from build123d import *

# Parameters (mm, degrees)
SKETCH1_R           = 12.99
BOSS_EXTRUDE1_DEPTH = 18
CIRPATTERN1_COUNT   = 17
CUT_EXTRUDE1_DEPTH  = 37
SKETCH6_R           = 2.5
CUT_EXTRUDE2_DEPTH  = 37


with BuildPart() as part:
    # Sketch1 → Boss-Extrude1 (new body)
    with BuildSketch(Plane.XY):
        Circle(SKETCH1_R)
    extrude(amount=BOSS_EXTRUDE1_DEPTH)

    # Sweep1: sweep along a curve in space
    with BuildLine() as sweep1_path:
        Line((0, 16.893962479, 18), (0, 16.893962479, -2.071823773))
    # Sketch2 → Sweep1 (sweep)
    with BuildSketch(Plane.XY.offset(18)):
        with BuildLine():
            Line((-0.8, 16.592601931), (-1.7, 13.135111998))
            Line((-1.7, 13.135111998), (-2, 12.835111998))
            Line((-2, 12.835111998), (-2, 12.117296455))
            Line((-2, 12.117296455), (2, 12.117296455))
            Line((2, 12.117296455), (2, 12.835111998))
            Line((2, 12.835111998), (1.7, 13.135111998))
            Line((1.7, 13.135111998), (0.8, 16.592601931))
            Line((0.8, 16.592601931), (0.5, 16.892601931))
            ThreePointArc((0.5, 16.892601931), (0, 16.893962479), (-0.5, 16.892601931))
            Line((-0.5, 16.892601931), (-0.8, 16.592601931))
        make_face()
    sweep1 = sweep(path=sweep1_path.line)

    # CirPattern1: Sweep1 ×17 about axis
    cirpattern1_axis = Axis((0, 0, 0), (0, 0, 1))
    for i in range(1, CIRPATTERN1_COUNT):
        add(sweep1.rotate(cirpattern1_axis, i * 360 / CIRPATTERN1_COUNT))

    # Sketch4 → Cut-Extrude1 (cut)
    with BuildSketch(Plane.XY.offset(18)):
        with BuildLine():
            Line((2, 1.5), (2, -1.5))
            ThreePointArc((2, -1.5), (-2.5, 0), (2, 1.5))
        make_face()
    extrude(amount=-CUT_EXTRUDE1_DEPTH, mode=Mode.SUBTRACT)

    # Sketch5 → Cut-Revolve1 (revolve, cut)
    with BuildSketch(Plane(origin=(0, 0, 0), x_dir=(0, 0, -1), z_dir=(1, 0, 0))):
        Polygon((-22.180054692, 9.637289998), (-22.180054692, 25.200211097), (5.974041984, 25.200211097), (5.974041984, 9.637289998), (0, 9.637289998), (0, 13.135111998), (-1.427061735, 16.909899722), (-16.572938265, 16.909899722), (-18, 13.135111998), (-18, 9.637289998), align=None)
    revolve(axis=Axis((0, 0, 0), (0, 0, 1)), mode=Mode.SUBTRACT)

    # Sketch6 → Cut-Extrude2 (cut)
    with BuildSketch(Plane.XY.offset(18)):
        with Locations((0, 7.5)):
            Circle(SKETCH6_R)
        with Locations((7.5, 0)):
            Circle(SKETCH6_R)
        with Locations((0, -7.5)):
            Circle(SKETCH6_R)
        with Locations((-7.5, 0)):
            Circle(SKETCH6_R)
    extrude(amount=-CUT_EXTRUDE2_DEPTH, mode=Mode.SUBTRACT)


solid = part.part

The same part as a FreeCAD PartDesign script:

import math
import FreeCAD as App
import Part
import Sketcher

V = App.Vector
Q = App.Units.Quantity

doc = App.newDocument("Part")
body = doc.addObject("PartDesign::Body", "Body")

sketch1 = body.newObject("Sketcher::SketchObject", "Sketch")
sketch1.AttachmentSupport = (doc.getObject("XY_Plane"), [""])
sketch1.MapMode = "FlatFace"
sketch1.addGeometry(Part.Circle(V(0, 0, 0), V(0, 0, 1), 13), False)
sketch1.addConstraint(Sketcher.Constraint("Coincident", 0, 3, -1, 1))
sketch1.addConstraint(Sketcher.Constraint("Diameter", 0, Q("25.98 mm")))
pad1 = body.newObject("PartDesign::Pad", "Pad")
pad1.Profile = sketch1
pad1.Length = 18

sketch2 = body.newObject("Sketcher::SketchObject", "Sketch001")
sketch2.AttachmentSupport = (doc.getObject("XY_Plane"), [""])
sketch2.MapMode = "FlatFace"
sketch2.AttachmentOffset = App.Placement(V(0, 0, 18), App.Rotation())
sketch2.addGeometry(Part.LineSegment(V(-0.8, 16.59, 0), V(-1.7, 13.14, 0)), False)
sketch2.addGeometry(Part.LineSegment(V(-1.7, 13.14, 0), V(-2, 12.84, 0)), False)
sketch2.addGeometry(Part.LineSegment(V(-2, 12.84, 0), V(-2, 12.12, 0)), False)
sketch2.addGeometry(Part.LineSegment(V(-2, 12.12, 0), V(2, 12.12, 0)), False)
sketch2.addGeometry(Part.LineSegment(V(2, 12.12, 0), V(2, 12.84, 0)), False)
sketch2.addGeometry(Part.LineSegment(V(2, 12.84, 0), V(1.7, 13.14, 0)), False)
sketch2.addGeometry(Part.LineSegment(V(1.7, 13.14, 0), V(0.8, 16.59, 0)), False)
sketch2.addGeometry(Part.LineSegment(V(0.8, 16.59, 0), V(0.5, 16.89, 0)), False)
sketch2.addGeometry(Part.ArcOfCircle(Part.Circle(V(0, -74.98, 0), V(0, 0, 1), 91.88), math.radians(89.69), math.radians(90.31)), False)
sketch2.addGeometry(Part.LineSegment(V(-0.5, 16.89, 0), V(-0.8, 16.59, 0)), False)
sketch2.addConstraint(Sketcher.Constraint("Coincident", 0, 2, 1, 1))
sketch2.addConstraint(Sketcher.Constraint("Coincident", 1, 2, 2, 1))
sketch2.addConstraint(Sketcher.Constraint("Coincident", 2, 2, 3, 1))
sketch2.addConstraint(Sketcher.Constraint("Coincident", 3, 2, 4, 1))
sketch2.addConstraint(Sketcher.Constraint("Coincident", 4, 2, 5, 1))
sketch2.addConstraint(Sketcher.Constraint("Coincident", 5, 2, 6, 1))
sketch2.addConstraint(Sketcher.Constraint("Coincident", 6, 2, 7, 1))
sketch2.addConstraint(Sketcher.Constraint("Coincident", 7, 2, 8, 1))
sketch2.addConstraint(Sketcher.Constraint("Coincident", 8, 2, 9, 1))
sketch2.addConstraint(Sketcher.Constraint("Coincident", 9, 2, 0, 1))
sketch2.addConstraint(Sketcher.Constraint("Vertical", 2))
sketch2.addConstraint(Sketcher.Constraint("Horizontal", 3))
sketch2.addConstraint(Sketcher.Constraint("Vertical", 4))
sketch2.addConstraint(Sketcher.Constraint("Symmetric", 1, 2, 4, 2, -2))
sketch2.addConstraint(Sketcher.Constraint("Symmetric", 0, 2, 5, 2, -2))
sketch2.addConstraint(Sketcher.Constraint("Symmetric", 7, 2, 8, 2, -2))
sketch2.addConstraint(Sketcher.Constraint("Symmetric", 6, 2, 9, 2, -2))
sketch2.addConstraint(Sketcher.Constraint("Perpendicular", 1, 5))
sketch2.addConstraint(Sketcher.Constraint("Parallel", 5, 7))
sketch2.addConstraint(Sketcher.Constraint("Equal", 5, 7))
sketch2.addConstraint(Sketcher.Constraint("DistanceX", 3, 1, 3, 2, Q("4 mm")))
sketch2.addConstraint(Sketcher.Constraint("DistanceX", 8, 2, 7, 2, Q("1 mm")))
sketch2.addConstraint(Sketcher.Constraint("DistanceX", 0, 2, -1, 1, Q("1.7 mm")))
sketch2.addConstraint(Sketcher.Constraint("Radius", 8, Q("91.875425 mm")))
sketch2.addConstraint(Sketcher.Constraint("DistanceY", -1, 1, 6, 2, Q("16.592602 mm")))
sketch2.addConstraint(Sketcher.Constraint("DistanceY", 2, 2, 2, 1, Q("0.717816 mm")))
sketch2.addConstraint(Sketcher.Constraint("DistanceY", -1, 1, 0, 2, Q("13.135112 mm")))

sketch3 = body.newObject("Sketcher::SketchObject", "Sketch002")
sketch3.AttachmentSupport = (doc.getObject("XZ_Plane"), [""])
sketch3.MapMode = "FlatFace"
sketch3.AttachmentOffset = App.Placement(V(0, 0, -16.893962), App.Rotation())
sketch3.addGeometry(Part.LineSegment(V(0, 18, 0), V(0, -2, 0)), False)
sketch3.addConstraint(Sketcher.Constraint("Vertical", 0))
sketch3.addConstraint(Sketcher.Constraint("PointOnObject", 0, 1, -2))
sketch3.addConstraint(Sketcher.Constraint("DistanceY", -1, 1, 0, 1, Q("18 mm")))
sketch3.addConstraint(Sketcher.Constraint("DistanceY", 0, 2, 0, 1, Q("20.071824 mm")))
doc.recompute()

additivepipe = body.newObject("PartDesign::AdditivePipe", "AdditivePipe")
additivepipe.Profile = sketch2
additivepipe.Spine = (sketch3, ["Edge1"])
doc.recompute()

polarpattern = body.newObject("PartDesign::PolarPattern", "PolarPattern")
polarpattern.Originals = [additivepipe]
polarpattern.Axis = (doc.getObject("Z_Axis"), [""])
polarpattern.Angle = 360
polarpattern.Occurrences = 17
body.Tip = polarpattern

sketch4 = body.newObject("Sketcher::SketchObject", "Sketch003")
sketch4.AttachmentSupport = (doc.getObject("XY_Plane"), [""])
sketch4.MapMode = "FlatFace"
sketch4.AttachmentOffset = App.Placement(V(0, 0, 18), App.Rotation())
sketch4.addGeometry(Part.LineSegment(V(2, -1.5, 0), V(2, 1.5, 0)), False)
sketch4.addGeometry(Part.ArcOfCircle(Part.Circle(V(0, 0, 0), V(0, 0, 1), 2.5), math.radians(37), math.radians(323)), False)
sketch4.addConstraint(Sketcher.Constraint("Coincident", 0, 1, 1, 2))
sketch4.addConstraint(Sketcher.Constraint("Coincident", 1, 1, 0, 2))
sketch4.addConstraint(Sketcher.Constraint("Vertical", 0))
sketch4.addConstraint(Sketcher.Constraint("Coincident", 1, 3, -1, 1))
sketch4.addConstraint(Sketcher.Constraint("Radius", 1, Q("2.5 mm")))
sketch4.addConstraint(Sketcher.Constraint("DistanceY", 0, 1, 0, 2, Q("3 mm")))
pocket1 = body.newObject("PartDesign::Pocket", "Pocket")
pocket1.Profile = sketch4
pocket1.Length = 37

sketch5 = body.newObject("Sketcher::SketchObject", "Sketch004")
sketch5.AttachmentSupport = (doc.getObject("YZ_Plane"), [""])
sketch5.MapMode = "FlatFace"
sketch5.addGeometry(Part.LineSegment(V(25.2, 22.2, 0), V(9.6, 22.2, 0)), False)
sketch5.addGeometry(Part.LineSegment(V(9.6, 22.2, 0), V(9.6, 18, 0)), False)
sketch5.addGeometry(Part.LineSegment(V(9.6, 18, 0), V(13.1, 18, 0)), False)
sketch5.addGeometry(Part.LineSegment(V(13.1, 18, 0), V(16.9, 16.6, 0)), False)
sketch5.addGeometry(Part.LineSegment(V(16.9, 16.6, 0), V(16.9, 1.4, 0)), False)
sketch5.addGeometry(Part.LineSegment(V(16.9, 1.4, 0), V(13.1, 0, 0)), False)
sketch5.addGeometry(Part.LineSegment(V(13.1, 0, 0), V(9.6, 0, 0)), False)
sketch5.addGeometry(Part.LineSegment(V(9.6, 0, 0), V(9.6, -6, 0)), False)
sketch5.addGeometry(Part.LineSegment(V(9.6, -6, 0), V(25.2, -6, 0)), False)
sketch5.addGeometry(Part.LineSegment(V(25.2, -6, 0), V(25.2, 22.2, 0)), False)
sketch5.addConstraint(Sketcher.Constraint("Coincident", 0, 2, 1, 1))
sketch5.addConstraint(Sketcher.Constraint("Coincident", 1, 2, 2, 1))
sketch5.addConstraint(Sketcher.Constraint("Coincident", 2, 2, 3, 1))
sketch5.addConstraint(Sketcher.Constraint("Coincident", 3, 2, 4, 1))
sketch5.addConstraint(Sketcher.Constraint("Coincident", 4, 2, 5, 1))
sketch5.addConstraint(Sketcher.Constraint("Coincident", 5, 2, 6, 1))
sketch5.addConstraint(Sketcher.Constraint("Coincident", 6, 2, 7, 1))
sketch5.addConstraint(Sketcher.Constraint("Coincident", 7, 2, 8, 1))
sketch5.addConstraint(Sketcher.Constraint("Coincident", 8, 2, 9, 1))
sketch5.addConstraint(Sketcher.Constraint("Coincident", 9, 2, 0, 1))
sketch5.addConstraint(Sketcher.Constraint("Horizontal", 0))
sketch5.addConstraint(Sketcher.Constraint("Vertical", 1))
sketch5.addConstraint(Sketcher.Constraint("Horizontal", 2))
sketch5.addConstraint(Sketcher.Constraint("Vertical", 4))
sketch5.addConstraint(Sketcher.Constraint("Horizontal", 6))
sketch5.addConstraint(Sketcher.Constraint("Vertical", 7))
sketch5.addConstraint(Sketcher.Constraint("Horizontal", 8))
sketch5.addConstraint(Sketcher.Constraint("Vertical", 9))
sketch5.addConstraint(Sketcher.Constraint("PointOnObject", 5, 2, -1))
sketch5.addConstraint(Sketcher.Constraint("Vertical", 2, 2, 5, 2))
sketch5.addConstraint(Sketcher.Constraint("Vertical", 1, 2, 6, 2))
sketch5.addConstraint(Sketcher.Constraint("Equal", 3, 5))
sketch5.addConstraint(Sketcher.Constraint("DistanceY", -1, 1, 1, 2, Q("18 mm")))
sketch5.addConstraint(Sketcher.Constraint("DistanceX", 0, 2, 0, 1, Q("15.562921 mm")))
sketch5.addConstraint(Sketcher.Constraint("DistanceX", 2, 1, 2, 2, Q("3.497822 mm")))
sketch5.addConstraint(Sketcher.Constraint("DistanceY", 7, 2, 7, 1, Q("5.974042 mm")))
sketch5.addConstraint(Sketcher.Constraint("DistanceX", -1, 1, 3, 2, Q("16.9099 mm")))
sketch5.addConstraint(Sketcher.Constraint("DistanceY", 1, 2, 1, 1, Q("4.180055 mm")))
sketch5.addConstraint(Sketcher.Constraint("DistanceY", 4, 2, 4, 1, Q("15.145877 mm")))
sketch5.addConstraint(Sketcher.Constraint("DistanceX", -1, 1, 0, 2, Q("9.63729 mm")))
groove = body.newObject("PartDesign::Groove", "Groove")
groove.Profile = sketch5
groove.ReferenceAxis = (sketch5, ["V_Axis"])
groove.Angle = 360

sketch6 = body.newObject("Sketcher::SketchObject", "Sketch005")
sketch6.AttachmentSupport = (doc.getObject("XY_Plane"), [""])
sketch6.MapMode = "FlatFace"
sketch6.AttachmentOffset = App.Placement(V(0, 0, 18), App.Rotation())
sketch6.addGeometry(Part.Circle(V(0, 7.5, 0), V(0, 0, 1), 2.5), False)
sketch6.addGeometry(Part.Circle(V(7.5, 0, 0), V(0, 0, 1), 2.5), False)
sketch6.addGeometry(Part.Circle(V(0, -7.5, 0), V(0, 0, 1), 2.5), False)
sketch6.addGeometry(Part.Circle(V(-7.5, 0, 0), V(0, 0, 1), 2.5), False)
sketch6.addConstraint(Sketcher.Constraint("Equal", 0, 1))
sketch6.addConstraint(Sketcher.Constraint("Equal", 1, 2))
sketch6.addConstraint(Sketcher.Constraint("Equal", 2, 3))
sketch6.addConstraint(Sketcher.Constraint("Symmetric", 0, 3, 2, 3, -1, 1))
sketch6.addConstraint(Sketcher.Constraint("Symmetric", 1, 3, 3, 3, -1, 1))
sketch6.addConstraint(Sketcher.Constraint("PointOnObject", 0, 3, -2))
sketch6.addConstraint(Sketcher.Constraint("PointOnObject", 1, 3, -1))
sketch6.addConstraint(Sketcher.Constraint("Diameter", 0, Q("5 mm")))
sketch6.addConstraint(Sketcher.Constraint("DistanceY", 2, 3, 0, 3, Q("15 mm")))
sketch6.addConstraint(Sketcher.Constraint("DistanceX", 3, 3, 1, 3, Q("15 mm")))
pocket2 = body.newObject("PartDesign::Pocket", "Pocket001")
pocket2.Profile = sketch6
pocket2.Length = 37

doc.recompute()
